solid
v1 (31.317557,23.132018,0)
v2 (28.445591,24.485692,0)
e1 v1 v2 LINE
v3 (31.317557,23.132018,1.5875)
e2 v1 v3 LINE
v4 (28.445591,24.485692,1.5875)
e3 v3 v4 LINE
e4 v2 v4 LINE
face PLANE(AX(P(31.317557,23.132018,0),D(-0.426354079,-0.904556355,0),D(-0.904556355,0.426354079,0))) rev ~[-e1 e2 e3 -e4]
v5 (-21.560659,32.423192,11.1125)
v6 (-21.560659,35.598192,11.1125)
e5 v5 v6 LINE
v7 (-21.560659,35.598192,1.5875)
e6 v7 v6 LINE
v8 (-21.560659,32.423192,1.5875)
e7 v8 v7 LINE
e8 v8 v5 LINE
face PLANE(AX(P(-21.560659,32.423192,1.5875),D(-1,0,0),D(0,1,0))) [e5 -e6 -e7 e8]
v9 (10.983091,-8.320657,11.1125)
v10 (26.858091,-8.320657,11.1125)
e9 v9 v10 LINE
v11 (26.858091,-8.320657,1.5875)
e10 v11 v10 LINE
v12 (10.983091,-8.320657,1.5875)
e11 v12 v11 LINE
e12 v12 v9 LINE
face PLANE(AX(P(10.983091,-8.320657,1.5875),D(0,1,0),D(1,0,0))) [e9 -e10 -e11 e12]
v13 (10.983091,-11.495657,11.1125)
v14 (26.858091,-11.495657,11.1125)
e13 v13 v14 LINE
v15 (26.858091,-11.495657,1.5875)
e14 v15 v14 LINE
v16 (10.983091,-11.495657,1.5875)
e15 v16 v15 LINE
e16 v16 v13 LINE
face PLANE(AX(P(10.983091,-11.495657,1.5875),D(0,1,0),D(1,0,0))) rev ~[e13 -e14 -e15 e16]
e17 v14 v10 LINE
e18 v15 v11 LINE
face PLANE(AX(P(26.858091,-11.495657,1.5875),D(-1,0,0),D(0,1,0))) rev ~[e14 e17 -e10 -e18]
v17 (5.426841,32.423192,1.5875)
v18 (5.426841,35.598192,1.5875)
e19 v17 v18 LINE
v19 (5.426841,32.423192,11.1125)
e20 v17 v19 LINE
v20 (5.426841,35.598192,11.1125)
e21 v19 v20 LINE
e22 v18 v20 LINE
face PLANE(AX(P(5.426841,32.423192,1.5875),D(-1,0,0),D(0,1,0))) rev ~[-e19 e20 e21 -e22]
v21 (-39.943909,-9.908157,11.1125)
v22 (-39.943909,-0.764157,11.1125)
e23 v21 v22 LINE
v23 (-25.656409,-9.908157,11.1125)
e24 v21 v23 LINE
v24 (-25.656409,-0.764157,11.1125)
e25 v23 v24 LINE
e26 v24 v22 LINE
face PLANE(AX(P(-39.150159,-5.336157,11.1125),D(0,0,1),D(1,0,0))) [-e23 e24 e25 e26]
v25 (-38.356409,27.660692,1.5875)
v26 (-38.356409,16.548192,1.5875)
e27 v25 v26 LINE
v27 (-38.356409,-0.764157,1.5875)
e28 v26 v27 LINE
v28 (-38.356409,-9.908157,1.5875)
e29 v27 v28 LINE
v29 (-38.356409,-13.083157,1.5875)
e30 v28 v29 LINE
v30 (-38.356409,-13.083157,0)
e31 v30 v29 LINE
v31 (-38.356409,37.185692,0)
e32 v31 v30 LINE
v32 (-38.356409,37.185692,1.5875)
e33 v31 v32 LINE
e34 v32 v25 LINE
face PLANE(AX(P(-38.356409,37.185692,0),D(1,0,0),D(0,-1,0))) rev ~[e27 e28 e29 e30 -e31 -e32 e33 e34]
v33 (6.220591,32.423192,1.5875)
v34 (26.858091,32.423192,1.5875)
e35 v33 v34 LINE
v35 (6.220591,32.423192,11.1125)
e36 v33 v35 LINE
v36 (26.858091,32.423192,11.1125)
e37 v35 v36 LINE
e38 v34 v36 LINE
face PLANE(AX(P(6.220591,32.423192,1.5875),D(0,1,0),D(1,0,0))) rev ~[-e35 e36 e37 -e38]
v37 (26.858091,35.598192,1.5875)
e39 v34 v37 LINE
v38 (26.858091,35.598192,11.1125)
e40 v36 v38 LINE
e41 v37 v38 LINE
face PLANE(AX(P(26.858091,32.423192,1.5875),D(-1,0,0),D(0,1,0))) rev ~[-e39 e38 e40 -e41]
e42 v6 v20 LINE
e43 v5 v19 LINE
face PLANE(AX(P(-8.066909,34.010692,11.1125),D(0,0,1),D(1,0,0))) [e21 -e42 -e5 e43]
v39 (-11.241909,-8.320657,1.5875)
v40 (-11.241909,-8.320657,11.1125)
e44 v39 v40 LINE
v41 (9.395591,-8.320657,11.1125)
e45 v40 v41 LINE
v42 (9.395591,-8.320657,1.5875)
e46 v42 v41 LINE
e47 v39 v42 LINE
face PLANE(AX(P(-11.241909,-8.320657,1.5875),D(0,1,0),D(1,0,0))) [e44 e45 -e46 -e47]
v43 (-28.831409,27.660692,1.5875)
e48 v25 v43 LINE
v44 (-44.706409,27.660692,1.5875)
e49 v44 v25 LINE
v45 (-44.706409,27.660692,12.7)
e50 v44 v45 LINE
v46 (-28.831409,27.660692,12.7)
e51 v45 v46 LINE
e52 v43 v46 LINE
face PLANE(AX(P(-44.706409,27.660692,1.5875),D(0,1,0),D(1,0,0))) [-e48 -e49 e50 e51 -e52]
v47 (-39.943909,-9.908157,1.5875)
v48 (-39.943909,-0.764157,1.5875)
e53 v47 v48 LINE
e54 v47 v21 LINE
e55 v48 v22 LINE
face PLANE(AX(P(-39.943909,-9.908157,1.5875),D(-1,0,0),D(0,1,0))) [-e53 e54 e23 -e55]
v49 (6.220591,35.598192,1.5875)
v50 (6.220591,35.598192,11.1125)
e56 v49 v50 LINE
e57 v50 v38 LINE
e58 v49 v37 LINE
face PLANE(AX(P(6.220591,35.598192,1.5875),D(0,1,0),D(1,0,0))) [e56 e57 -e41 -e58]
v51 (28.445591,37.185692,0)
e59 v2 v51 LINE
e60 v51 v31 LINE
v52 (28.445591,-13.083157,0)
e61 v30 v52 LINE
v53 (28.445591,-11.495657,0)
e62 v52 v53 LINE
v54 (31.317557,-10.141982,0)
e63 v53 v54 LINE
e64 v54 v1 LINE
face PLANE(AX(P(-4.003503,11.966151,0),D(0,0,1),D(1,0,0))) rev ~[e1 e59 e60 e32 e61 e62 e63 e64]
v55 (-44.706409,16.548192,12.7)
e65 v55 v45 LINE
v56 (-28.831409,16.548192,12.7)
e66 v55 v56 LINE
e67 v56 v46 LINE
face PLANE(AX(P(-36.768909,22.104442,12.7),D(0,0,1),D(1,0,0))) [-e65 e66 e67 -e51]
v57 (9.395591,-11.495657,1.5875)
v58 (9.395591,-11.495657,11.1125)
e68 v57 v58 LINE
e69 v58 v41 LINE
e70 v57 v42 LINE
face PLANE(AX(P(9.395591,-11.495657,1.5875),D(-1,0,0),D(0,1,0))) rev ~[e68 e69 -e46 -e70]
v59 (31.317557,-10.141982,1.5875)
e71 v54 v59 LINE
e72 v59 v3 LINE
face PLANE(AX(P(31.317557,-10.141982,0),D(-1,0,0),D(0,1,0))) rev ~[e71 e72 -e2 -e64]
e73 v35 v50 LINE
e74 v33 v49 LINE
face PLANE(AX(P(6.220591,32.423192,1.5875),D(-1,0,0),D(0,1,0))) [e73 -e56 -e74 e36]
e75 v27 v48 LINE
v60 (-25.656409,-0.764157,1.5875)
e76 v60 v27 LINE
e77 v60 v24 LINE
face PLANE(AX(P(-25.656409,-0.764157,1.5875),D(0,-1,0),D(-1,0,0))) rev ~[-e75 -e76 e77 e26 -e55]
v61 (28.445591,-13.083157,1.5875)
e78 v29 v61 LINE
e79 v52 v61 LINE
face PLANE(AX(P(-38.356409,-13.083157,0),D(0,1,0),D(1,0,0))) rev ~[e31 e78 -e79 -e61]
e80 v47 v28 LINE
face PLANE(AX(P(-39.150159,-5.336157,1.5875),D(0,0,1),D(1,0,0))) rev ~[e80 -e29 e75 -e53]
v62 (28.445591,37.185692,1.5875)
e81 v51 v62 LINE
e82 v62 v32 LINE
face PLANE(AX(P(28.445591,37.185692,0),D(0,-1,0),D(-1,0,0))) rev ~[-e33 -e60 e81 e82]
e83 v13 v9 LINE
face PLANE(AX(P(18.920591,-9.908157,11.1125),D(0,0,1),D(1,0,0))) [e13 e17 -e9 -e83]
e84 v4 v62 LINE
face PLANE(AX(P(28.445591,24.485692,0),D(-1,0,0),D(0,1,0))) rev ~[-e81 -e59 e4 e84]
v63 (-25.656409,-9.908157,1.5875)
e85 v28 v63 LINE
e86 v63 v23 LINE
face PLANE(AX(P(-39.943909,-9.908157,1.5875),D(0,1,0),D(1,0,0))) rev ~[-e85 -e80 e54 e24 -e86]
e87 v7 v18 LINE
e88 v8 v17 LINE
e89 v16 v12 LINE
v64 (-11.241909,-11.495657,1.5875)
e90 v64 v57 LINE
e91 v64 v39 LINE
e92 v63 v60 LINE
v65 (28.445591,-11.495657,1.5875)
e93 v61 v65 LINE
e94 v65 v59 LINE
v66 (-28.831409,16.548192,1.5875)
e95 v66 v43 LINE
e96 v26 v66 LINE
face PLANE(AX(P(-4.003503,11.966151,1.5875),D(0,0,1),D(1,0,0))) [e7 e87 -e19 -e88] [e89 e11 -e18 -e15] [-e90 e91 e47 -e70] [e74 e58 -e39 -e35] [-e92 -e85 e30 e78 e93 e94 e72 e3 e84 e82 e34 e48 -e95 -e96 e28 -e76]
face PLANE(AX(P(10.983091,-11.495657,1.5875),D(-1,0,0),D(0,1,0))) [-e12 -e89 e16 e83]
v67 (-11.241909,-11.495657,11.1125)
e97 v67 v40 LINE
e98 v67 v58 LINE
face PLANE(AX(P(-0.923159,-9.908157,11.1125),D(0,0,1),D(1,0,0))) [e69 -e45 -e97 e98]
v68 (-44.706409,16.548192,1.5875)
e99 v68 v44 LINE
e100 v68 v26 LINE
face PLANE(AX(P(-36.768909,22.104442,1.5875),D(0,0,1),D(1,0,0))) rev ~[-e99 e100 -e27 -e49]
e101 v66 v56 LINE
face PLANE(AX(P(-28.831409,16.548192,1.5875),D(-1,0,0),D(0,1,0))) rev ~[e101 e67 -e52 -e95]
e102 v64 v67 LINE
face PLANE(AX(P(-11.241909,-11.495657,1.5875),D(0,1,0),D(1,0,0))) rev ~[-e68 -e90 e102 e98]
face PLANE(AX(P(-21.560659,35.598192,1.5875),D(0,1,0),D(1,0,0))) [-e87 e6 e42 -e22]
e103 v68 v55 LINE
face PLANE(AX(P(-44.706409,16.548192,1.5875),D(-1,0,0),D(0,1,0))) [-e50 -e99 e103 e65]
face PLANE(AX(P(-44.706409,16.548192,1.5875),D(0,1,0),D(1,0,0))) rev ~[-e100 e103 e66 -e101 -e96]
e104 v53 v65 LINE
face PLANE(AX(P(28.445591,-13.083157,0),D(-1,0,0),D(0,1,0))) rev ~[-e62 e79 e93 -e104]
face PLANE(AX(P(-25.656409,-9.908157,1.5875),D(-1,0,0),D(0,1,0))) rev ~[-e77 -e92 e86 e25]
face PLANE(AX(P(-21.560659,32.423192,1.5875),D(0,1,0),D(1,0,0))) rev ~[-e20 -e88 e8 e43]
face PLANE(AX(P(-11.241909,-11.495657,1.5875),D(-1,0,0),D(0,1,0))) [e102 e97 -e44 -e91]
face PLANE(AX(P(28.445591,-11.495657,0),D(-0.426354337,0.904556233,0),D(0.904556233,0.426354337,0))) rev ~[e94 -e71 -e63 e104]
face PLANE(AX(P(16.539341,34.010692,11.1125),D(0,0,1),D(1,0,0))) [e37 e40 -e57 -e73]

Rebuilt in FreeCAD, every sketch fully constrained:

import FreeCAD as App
import Part
import Sketcher

V = App.Vector
Q = App.Units.Quantity


def add_polygon(sketch, points):
    """Adds a closed chain of lines whose ends are joined by coincident constraints."""
    first, n = sketch.GeometryCount, len(points)
    for a, b in zip(points, points[1:] + points[:1]):
        sketch.addGeometry(Part.LineSegment(App.Vector(*a, 0), App.Vector(*b, 0)), False)
    for i in range(n):
        sketch.addConstraint(Sketcher.Constraint("Coincident", first + i, 2, first + (i + 1) % n, 1))

doc = App.newDocument("Part")
params = doc.addObject("Spreadsheet::Sheet", "Params")
for row, (alias, value) in enumerate([
    ("sketch1_height", "0.5 in"),
    ("sketch1_width", "2.63 in"),
    ("sketch1_height2", "1.31 in"),
    ("sketch1_height3", "0.0625 in"),
    ("sketch1_length", "0.125 in"),
    ("pad1_length", "0.0625 in"),
    ("sketch2_width", "0.625 in"),
    ("sketch2_height", "0.4375 in"),
    ("pad2_length", "0.4375 in"),
    ("sketch3_height", "0.36 in"),
    ("sketch3_width", "0.5625 in"),
    ("pad3_length", "0.375 in"),
    ("sketch4_width", "1.0625 in"),
    ("sketch4_width2", "0.8125 in"),
    ("sketch4_width3", "0.625 in"),
    ("sketch4_height", "0.125 in"),
    ("pad4_length", "0.375 in"),
], start=1):
    params.set(f"A{row}", alias)
    params.set(f"B{row}", "=" + value)
    params.setAlias(f"B{row}", alias)

body = doc.addObject("PartDesign::Body", "Body")

# Sketch on XY plane
sketch1 = doc.addObject("Sketcher::SketchObject", "Sketch")
body.addObject(sketch1)
sketch1.AttachmentSupport = (doc.XY_Plane, [""])
sketch1.MapMode = "FlatFace"
add_polygon(sketch1, [(-38.356409, 37.185692), (-38.356409, -13.083157), (28.445591, -13.083157), (28.445591, -11.495657), (31.317557, -10.141982), (31.317557, 23.132018), (28.445591, 24.485692), (28.445591, 37.185692)])  # lines 0-7
sketch1.addConstraint([
    Sketcher.Constraint("Vertical", 0),
    Sketcher.Constraint("Horizontal", 1),
    Sketcher.Constraint("Vertical", 2),
    Sketcher.Constraint("Vertical", 4),
    Sketcher.Constraint("Vertical", 6),
    Sketcher.Constraint("Horizontal", 7),
    Sketcher.Constraint("Vertical", 2, 2, 5, 2),
    Sketcher.Constraint("Equal", 3, 5),
    Sketcher.Constraint("DistanceY", 6, 1, 6, 2, Q("0.5 in")),
    Sketcher.Constraint("DistanceX", 1, 1, 1, 2, Q("2.63 in")),
    Sketcher.Constraint("DistanceY", 4, 1, 4, 2, Q("1.31 in")),
    Sketcher.Constraint("DistanceY", 2, 1, 2, 2, Q("0.0625 in")),
    Sketcher.Constraint("Distance", 3, Q("0.125 in")),
    Sketcher.Constraint("DistanceY", 0, 2, 0, 1, Q("50.268849 mm")),
    Sketcher.Constraint("DistanceX", 0, 2, -1, 1, Q("38.356409 mm")),
    Sketcher.Constraint("DistanceY", -1, 1, 5, 2, Q("24.485692 mm")),
])
sketch1.setExpression("Constraints[16]", "Params.sketch1_height")
sketch1.setExpression("Constraints[17]", "Params.sketch1_width")
sketch1.setExpression("Constraints[18]", "Params.sketch1_height2")
sketch1.setExpression("Constraints[19]", "Params.sketch1_height3")
sketch1.setExpression("Constraints[20]", "Params.sketch1_length")
pad1 = doc.addObject("PartDesign::Pad", "Pad")
body.addObject(pad1)
pad1.Profile = sketch1
pad1.setExpression("Length", "Params.pad1_length")

# Sketch on XY plane
sketch2 = doc.addObject("Sketcher::SketchObject", "Sketch001")
body.addObject(sketch2)
sketch2.AttachmentSupport = (doc.XY_Plane, [""])
sketch2.MapMode = "FlatFace"
sketch2.AttachmentOffset = App.Placement(V(0, 0, 0.0625 * 25.4), App.Rotation())
add_polygon(sketch2, [(-44.706409, 27.660692), (-44.706409, 16.548192), (-28.831409, 16.548192), (-28.831409, 27.660692)])  # lines 0-3
sketch2.addConstraint([
    Sketcher.Constraint("Vertical", 0),
    Sketcher.Constraint("Horizontal", 1),
    Sketcher.Constraint("Vertical", 2),
    Sketcher.Constraint("Horizontal", 3),
    Sketcher.Constraint("DistanceX", 1, 1, 1, 2, Q("0.625 in")),
    Sketcher.Constraint("DistanceY", 0, 2, 0, 1, Q("0.4375 in")),
    Sketcher.Constraint("DistanceX", 0, 2, -1, 1, Q("44.706409 mm")),
    Sketcher.Constraint("DistanceY", -1, 1, 0, 2, Q("16.548192 mm")),
])
sketch2.setExpression("Constraints[8]", "Params.sketch2_width")
sketch2.setExpression("Constraints[9]", "Params.sketch2_height")
pad2 = doc.addObject("PartDesign::Pad", "Pad001")
body.addObject(pad2)
pad2.Profile = sketch2
pad2.setExpression("Length", "Params.pad2_length")

# Sketch on XY plane
sketch3 = doc.addObject("Sketcher::SketchObject", "Sketch002")
body.addObject(sketch3)
sketch3.AttachmentSupport = (doc.XY_Plane, [""])
sketch3.MapMode = "FlatFace"
sketch3.AttachmentOffset = App.Placement(V(0, 0, 0.0625 * 25.4), App.Rotation())
add_polygon(sketch3, [(-39.943909, -0.764157), (-39.943909, -9.908157), (-25.656409, -9.908157), (-25.656409, -0.764157)])  # lines 0-3
sketch3.addConstraint([
    Sketcher.Constraint("Vertical", 0),
    Sketcher.Constraint("Horizontal", 1),
    Sketcher.Constraint("Vertical", 2),
    Sketcher.Constraint("Horizontal", 3),
    Sketcher.Constraint("DistanceY", 0, 2, 0, 1, Q("0.36 in")),
    Sketcher.Constraint("DistanceX", 1, 1, 1, 2, Q("0.5625 in")),
    Sketcher.Constraint("DistanceX", 0, 2, -1, 1, Q("39.943909 mm")),
    Sketcher.Constraint("DistanceY", 0, 2, -1, 1, Q("9.908157 mm")),
])
sketch3.setExpression("Constraints[8]", "Params.sketch3_height")
sketch3.setExpression("Constraints[9]", "Params.sketch3_width")
pad3 = doc.addObject("PartDesign::Pad", "Pad002")
body.addObject(pad3)
pad3.Profile = sketch3
pad3.setExpression("Length", "Params.pad3_length")

# Sketch on XY plane
sketch4 = doc.addObject("Sketcher::SketchObject", "Sketch003")
body.addObject(sketch4)
sketch4.AttachmentSupport = (doc.XY_Plane, [""])
sketch4.MapMode = "FlatFace"
sketch4.AttachmentOffset = App.Placement(V(0, 0, 0.0625 * 25.4), App.Rotation())
add_polygon(sketch4, [(-21.560659, 35.598192), (-21.560659, 32.423192), (5.426841, 32.423192), (5.426841, 35.598192)])  # lines 0-3
add_polygon(sketch4, [(6.220591, 35.598192), (6.220591, 32.423192), (26.858091, 32.423192), (26.858091, 35.598192)])  # lines 4-7
add_polygon(sketch4, [(-11.241909, -8.320657), (-11.241909, -11.495657), (9.395591, -11.495657), (9.395591, -8.320657)])  # lines 8-11
add_polygon(sketch4, [(10.983091, -8.320657), (10.983091, -11.495657), (26.858091, -11.495657), (26.858091, -8.320657)])  # lines 12-15
sketch4.addConstraint([
    Sketcher.Constraint("Vertical", 0),
    Sketcher.Constraint("Horizontal", 1),
    Sketcher.Constraint("Vertical", 2),
    Sketcher.Constraint("Horizontal", 3),
    Sketcher.Constraint("Vertical", 4),
    Sketcher.Constraint("Horizontal", 5),
    Sketcher.Constraint("Vertical", 6),
    Sketcher.Constraint("Horizontal", 7),
    Sketcher.Constraint("Vertical", 8),
    Sketcher.Constraint("Horizontal", 9),
    Sketcher.Constraint("Vertical", 10),
    Sketcher.Constraint("Horizontal", 11),
    Sketcher.Constraint("Vertical", 12),
    Sketcher.Constraint("Horizontal", 13),
    Sketcher.Constraint("Vertical", 14),
    Sketcher.Constraint("Horizontal", 15),
    Sketcher.Constraint("Horizontal", 1, 2, 4, 2),
    Sketcher.Constraint("Horizontal", 3, 2, 6, 2),
    Sketcher.Constraint("Horizontal", 9, 2, 12, 2),
    Sketcher.Constraint("Horizontal", 11, 2, 14, 2),
    Sketcher.Constraint("Vertical", 6, 2, 13, 2),
    Sketcher.Constraint("Equal", 7, 9),
    Sketcher.Constraint("Equal", 6, 8),
    Sketcher.Constraint("DistanceX", 8, 2, 13, 2, Q("1.5 in")),
    Sketcher.Constraint("DistanceX", 1, 1, 1, 2, Q("1.0625 in")),
    Sketcher.Constraint("DistanceX", 5, 1, 5, 2, Q("0.8125 in")),
    Sketcher.Constraint("DistanceX", 13, 1, 13, 2, Q("0.625 in")),
    Sketcher.Constraint("DistanceY", 0, 2, 0, 1, Q("0.125 in")),
    Sketcher.Constraint("DistanceX", 1, 2, 4, 2, Q("0.03125 in")),
    Sketcher.Constraint("DistanceX", 0, 2, -1, 1, Q("21.560659 mm")),
    Sketcher.Constraint("DistanceY", -1, 1, 2, 2, Q("35.598192 mm")),
    Sketcher.Constraint("DistanceY", 8, 2, 0, 2, Q("43.918849 mm")),
])
sketch4.setExpression("Constraints[40]", "Params.sketch4_width")
sketch4.setExpression("Constraints[41]", "Params.sketch4_width2")
sketch4.setExpression("Constraints[42]", "Params.sketch4_width3")
sketch4.setExpression("Constraints[43]", "Params.sketch4_height")
pad4 = doc.addObject("PartDesign::Pad", "Pad003")
body.addObject(pad4)
pad4.Profile = sketch4
pad4.setExpression("Length", "Params.pad4_length")

doc.recompute()
